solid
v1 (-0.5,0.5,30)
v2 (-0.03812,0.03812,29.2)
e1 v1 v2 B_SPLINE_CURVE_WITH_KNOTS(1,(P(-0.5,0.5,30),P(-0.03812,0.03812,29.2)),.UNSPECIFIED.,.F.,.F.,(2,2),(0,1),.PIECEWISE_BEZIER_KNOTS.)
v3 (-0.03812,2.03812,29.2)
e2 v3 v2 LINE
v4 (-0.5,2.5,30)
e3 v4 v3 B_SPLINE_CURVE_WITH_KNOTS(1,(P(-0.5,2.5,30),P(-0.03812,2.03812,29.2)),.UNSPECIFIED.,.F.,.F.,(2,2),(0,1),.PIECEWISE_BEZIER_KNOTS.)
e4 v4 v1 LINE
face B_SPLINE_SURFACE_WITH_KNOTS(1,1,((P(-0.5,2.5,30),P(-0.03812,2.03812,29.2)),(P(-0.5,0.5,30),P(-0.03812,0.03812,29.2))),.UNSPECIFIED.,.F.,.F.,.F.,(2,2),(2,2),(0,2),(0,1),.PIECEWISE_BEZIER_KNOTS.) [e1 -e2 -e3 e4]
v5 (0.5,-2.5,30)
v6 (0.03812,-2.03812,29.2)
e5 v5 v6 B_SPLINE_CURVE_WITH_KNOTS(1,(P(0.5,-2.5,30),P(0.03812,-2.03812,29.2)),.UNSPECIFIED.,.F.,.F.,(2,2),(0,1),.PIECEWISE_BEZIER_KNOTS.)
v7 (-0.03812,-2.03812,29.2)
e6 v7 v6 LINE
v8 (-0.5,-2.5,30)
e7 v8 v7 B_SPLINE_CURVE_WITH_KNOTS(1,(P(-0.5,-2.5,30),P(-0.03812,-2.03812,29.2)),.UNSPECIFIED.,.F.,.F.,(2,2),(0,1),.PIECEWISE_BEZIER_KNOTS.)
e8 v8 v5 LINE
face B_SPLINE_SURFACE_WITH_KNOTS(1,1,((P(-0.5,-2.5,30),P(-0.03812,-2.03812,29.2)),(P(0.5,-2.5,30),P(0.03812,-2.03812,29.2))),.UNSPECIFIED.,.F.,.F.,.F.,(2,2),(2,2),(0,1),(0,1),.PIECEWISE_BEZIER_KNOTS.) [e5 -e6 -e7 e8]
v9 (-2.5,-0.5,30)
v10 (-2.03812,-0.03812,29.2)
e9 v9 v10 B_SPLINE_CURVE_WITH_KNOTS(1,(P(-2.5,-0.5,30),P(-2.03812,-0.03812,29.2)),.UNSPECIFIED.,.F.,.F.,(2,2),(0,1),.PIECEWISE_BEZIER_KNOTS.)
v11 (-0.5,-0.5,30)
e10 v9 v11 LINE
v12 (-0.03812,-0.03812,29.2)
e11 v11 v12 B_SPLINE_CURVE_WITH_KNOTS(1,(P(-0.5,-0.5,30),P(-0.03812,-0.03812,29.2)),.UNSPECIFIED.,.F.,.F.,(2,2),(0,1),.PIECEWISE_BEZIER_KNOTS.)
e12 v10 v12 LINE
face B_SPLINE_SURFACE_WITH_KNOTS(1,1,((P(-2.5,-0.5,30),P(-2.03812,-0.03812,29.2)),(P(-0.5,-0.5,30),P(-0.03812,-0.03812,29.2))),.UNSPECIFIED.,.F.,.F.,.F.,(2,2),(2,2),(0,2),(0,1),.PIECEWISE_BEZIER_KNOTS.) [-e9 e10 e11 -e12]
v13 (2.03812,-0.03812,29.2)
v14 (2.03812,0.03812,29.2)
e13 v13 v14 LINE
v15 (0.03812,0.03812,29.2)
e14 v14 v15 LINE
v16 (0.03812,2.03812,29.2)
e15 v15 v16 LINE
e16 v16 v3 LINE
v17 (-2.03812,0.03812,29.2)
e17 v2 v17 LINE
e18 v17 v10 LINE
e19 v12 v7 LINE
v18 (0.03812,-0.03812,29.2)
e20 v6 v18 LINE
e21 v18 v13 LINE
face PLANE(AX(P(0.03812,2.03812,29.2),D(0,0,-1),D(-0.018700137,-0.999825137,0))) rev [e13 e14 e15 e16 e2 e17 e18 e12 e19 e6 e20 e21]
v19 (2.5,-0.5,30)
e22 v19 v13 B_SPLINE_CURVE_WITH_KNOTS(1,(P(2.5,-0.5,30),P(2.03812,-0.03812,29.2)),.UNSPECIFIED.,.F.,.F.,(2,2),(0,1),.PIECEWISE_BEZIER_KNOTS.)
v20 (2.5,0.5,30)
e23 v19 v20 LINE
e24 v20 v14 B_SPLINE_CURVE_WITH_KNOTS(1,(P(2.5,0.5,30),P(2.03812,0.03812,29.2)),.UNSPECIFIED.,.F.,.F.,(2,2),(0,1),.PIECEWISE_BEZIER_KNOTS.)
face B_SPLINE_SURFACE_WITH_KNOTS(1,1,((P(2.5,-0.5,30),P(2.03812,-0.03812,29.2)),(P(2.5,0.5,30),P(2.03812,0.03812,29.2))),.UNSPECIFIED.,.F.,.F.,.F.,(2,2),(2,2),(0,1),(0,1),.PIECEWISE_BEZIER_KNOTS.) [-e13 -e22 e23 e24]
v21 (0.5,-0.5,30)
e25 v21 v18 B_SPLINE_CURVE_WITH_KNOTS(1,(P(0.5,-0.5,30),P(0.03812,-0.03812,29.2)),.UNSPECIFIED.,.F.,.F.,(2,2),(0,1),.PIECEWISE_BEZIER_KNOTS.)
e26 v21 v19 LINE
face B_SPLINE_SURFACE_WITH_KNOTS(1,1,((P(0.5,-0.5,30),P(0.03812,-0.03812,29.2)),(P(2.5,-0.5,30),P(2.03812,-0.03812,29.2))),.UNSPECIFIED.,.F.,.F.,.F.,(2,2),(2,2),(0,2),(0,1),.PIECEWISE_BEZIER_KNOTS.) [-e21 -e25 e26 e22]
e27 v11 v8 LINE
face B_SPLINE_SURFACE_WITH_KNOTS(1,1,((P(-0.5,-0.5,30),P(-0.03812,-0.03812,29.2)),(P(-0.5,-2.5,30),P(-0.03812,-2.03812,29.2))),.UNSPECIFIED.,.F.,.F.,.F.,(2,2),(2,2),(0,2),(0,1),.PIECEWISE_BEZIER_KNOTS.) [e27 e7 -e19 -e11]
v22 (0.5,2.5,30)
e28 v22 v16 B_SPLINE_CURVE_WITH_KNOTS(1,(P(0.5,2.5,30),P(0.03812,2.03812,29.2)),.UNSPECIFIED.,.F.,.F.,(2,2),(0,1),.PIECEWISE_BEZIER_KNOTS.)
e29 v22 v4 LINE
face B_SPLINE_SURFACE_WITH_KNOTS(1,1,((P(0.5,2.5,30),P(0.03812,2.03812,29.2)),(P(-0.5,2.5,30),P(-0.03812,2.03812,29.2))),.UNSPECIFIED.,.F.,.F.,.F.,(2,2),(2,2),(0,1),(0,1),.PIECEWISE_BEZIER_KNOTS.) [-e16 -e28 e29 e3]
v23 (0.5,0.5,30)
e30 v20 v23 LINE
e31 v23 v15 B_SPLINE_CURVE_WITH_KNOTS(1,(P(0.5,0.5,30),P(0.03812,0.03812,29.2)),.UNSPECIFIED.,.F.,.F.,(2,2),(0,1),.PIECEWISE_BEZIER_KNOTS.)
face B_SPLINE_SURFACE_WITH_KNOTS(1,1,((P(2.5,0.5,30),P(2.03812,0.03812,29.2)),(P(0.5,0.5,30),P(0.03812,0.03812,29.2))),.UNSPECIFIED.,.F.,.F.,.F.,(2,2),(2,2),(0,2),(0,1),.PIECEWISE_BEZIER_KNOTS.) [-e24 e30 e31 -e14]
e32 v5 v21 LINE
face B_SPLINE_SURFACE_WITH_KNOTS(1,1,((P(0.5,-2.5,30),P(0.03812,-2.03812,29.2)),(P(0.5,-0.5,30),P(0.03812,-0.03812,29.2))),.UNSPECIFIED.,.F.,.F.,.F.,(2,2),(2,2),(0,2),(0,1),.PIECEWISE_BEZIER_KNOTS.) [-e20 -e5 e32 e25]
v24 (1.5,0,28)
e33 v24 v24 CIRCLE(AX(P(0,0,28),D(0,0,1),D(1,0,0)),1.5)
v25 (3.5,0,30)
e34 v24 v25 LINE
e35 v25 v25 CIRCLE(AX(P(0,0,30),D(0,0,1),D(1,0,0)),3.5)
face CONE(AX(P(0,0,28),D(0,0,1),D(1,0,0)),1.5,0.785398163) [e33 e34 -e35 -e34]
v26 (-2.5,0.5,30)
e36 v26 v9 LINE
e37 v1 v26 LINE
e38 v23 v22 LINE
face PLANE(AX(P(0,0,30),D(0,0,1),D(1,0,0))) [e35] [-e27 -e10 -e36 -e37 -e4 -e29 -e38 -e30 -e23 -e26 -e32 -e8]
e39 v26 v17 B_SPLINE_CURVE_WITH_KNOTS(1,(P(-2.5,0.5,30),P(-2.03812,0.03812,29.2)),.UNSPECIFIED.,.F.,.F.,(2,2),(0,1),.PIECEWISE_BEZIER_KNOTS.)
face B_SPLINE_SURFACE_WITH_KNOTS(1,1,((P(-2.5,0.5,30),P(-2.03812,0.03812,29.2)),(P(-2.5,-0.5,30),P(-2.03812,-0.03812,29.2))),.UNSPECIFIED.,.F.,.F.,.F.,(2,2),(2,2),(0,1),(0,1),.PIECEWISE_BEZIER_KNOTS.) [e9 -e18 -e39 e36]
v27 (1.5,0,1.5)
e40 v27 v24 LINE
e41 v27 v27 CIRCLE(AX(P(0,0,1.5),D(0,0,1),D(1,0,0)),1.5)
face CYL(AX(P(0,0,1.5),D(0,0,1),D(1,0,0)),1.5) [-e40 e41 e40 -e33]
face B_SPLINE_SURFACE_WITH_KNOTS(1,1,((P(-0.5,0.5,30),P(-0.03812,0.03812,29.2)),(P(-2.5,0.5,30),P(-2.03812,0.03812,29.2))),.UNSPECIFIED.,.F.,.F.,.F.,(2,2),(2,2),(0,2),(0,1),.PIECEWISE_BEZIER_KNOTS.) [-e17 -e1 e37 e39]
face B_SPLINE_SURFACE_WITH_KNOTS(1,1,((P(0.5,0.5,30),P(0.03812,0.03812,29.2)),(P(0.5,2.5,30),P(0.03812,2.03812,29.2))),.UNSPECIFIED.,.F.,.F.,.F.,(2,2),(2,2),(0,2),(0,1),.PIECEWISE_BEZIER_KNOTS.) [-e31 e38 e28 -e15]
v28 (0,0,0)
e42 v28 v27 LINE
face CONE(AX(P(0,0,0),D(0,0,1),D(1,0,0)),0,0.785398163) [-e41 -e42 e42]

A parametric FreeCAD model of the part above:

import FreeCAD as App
import Part
import Sketcher

V = App.Vector
Q = App.Units.Quantity

doc = App.newDocument("Part")
body = doc.addObject("PartDesign::Body", "Body")

# Sketch on XZ plane
sketch1 = body.newObject("Sketcher::SketchObject", "Sketch")
sketch1.AttachmentSupport = (doc.getObject("XZ_Plane"), [""])
sketch1.MapMode = "FlatFace"
sketch1.addGeometry([
    Part.LineSegment(V(0, 30, 0), V(0, 0, 0)),  # 0
    Part.LineSegment(V(0, 0, 0), V(1.5, 1.5, 0)),  # 1
    Part.LineSegment(V(1.5, 1.5, 0), V(1.5, 28, 0)),  # 2
    Part.LineSegment(V(1.5, 28, 0), V(3.5, 30, 0)),  # 3
    Part.LineSegment(V(3.5, 30, 0), V(0, 30, 0)),  # 4
], False)
sketch1.addConstraint([
    Sketcher.Constraint("Coincident", 0, 2, 1, 1),
    Sketcher.Constraint("Coincident", 1, 2, 2, 1),
    Sketcher.Constraint("Coincident", 2, 2, 3, 1),
    Sketcher.Constraint("Coincident", 3, 2, 4, 1),
    Sketcher.Constraint("Coincident", 4, 2, 0, 1),
    Sketcher.Constraint("Vertical", 0),
    Sketcher.Constraint("Vertical", 2),
    Sketcher.Constraint("Horizontal", 4),
    Sketcher.Constraint("Coincident", 0, 2, -1, 1),
    Sketcher.Constraint("Parallel", 1, 3),
    Sketcher.Constraint("DistanceY", 0, 2, 0, 1, 30.0),
    Sketcher.Constraint("Angle", 1, Q("45 deg")),
    Sketcher.Constraint("DistanceX", 4, 2, 4, 1, 3.5),
    Sketcher.Constraint("DistanceY", -1, 1, 2, 2, 28.0),
])
revolution = body.newObject("PartDesign::Revolution", "Revolution")
revolution.Profile = sketch1
revolution.ReferenceAxis = (sketch1, ["V_Axis"])
revolution.Angle = 360

# Sketch on XY plane
sketch2 = body.newObject("Sketcher::SketchObject", "Sketch001")
sketch2.AttachmentSupport = (doc.getObject("XY_Plane"), [""])
sketch2.MapMode = "FlatFace"
sketch2.AttachmentOffset = App.Placement(V(0, 0, 30), App.Rotation())
sketch2.addGeometry([
    Part.LineSegment(V(0.5, 2.5, 0), V(-0.5, 2.5, 0)),  # 0
    Part.LineSegment(V(-0.5, 2.5, 0), V(-0.5, 0.5, 0)),  # 1
    Part.LineSegment(V(-0.5, 0.5, 0), V(-2.5, 0.5, 0)),  # 2
    Part.LineSegment(V(-2.5, 0.5, 0), V(-2.5, -0.5, 0)),  # 3
    Part.LineSegment(V(-2.5, -0.5, 0), V(-0.5, -0.5, 0)),  # 4
    Part.LineSegment(V(-0.5, -0.5, 0), V(-0.5, -2.5, 0)),  # 5
    Part.LineSegment(V(-0.5, -2.5, 0), V(0.5, -2.5, 0)),  # 6
    Part.LineSegment(V(0.5, -2.5, 0), V(0.5, -0.5, 0)),  # 7
    Part.LineSegment(V(0.5, -0.5, 0), V(2.5, -0.5, 0)),  # 8
    Part.LineSegment(V(2.5, -0.5, 0), V(2.5, 0.5, 0)),  # 9
    Part.LineSegment(V(2.5, 0.5, 0), V(0.5, 0.5, 0)),  # 10
    Part.LineSegment(V(0.5, 0.5, 0), V(0.5, 2.5, 0)),  # 11
], False)
sketch2.addConstraint([
    Sketcher.Constraint("Coincident", 0, 2, 1, 1),
    Sketcher.Constraint("Coincident", 1, 2, 2, 1),
    Sketcher.Constraint("Coincident", 2, 2, 3, 1),
    Sketcher.Constraint("Coincident", 3, 2, 4, 1),
    Sketcher.Constraint("Coincident", 4, 2, 5, 1),
    Sketcher.Constraint("Coincident", 5, 2, 6, 1),
    Sketcher.Constraint("Coincident", 6, 2, 7, 1),
    Sketcher.Constraint("Coincident", 7, 2, 8, 1),
    Sketcher.Constraint("Coincident", 8, 2, 9, 1),
    Sketcher.Constraint("Coincident", 9, 2, 10, 1),
    Sketcher.Constraint("Coincident", 10, 2, 11, 1),
    Sketcher.Constraint("Coincident", 11, 2, 0, 1),
    Sketcher.Constraint("Horizontal", 0),
    Sketcher.Constraint("Vertical", 1),
    Sketcher.Constraint("Horizontal", 2),
    Sketcher.Constraint("Vertical", 3),
    Sketcher.Constraint("Horizontal", 4),
    Sketcher.Constraint("Vertical", 5),
    Sketcher.Constraint("Horizontal", 6),
    Sketcher.Constraint("Vertical", 7),
    Sketcher.Constraint("Horizontal", 8),
    Sketcher.Constraint("Vertical", 9),
    Sketcher.Constraint("Horizontal", 10),
    Sketcher.Constraint("Vertical", 11),
    Sketcher.Constraint("Symmetric", 0, 2, 6, 2, -1, 1),
    Sketcher.Constraint("Symmetric", 2, 2, 8, 2, -1, 1),
    Sketcher.Constraint("Symmetric", 4, 2, 10, 2, -1, 1),
    Sketcher.Constraint("Symmetric", 4, 2, 7, 2, -2),
    Sketcher.Constraint("Equal", 10, 1),
    Sketcher.Constraint("Equal", 6, 3),
    Sketcher.Constraint("DistanceX", 0, 2, 0, 1, 1.0),
    Sketcher.Constraint("DistanceX", 2, 2, 2, 1, 2.0),
])
pocket1 = body.newObject("PartDesign::Pocket", "Pocket")
pocket1.Profile = sketch2
pocket1.Length = 0.8
pocket1.TaperAngle = -30

doc.recompute()
